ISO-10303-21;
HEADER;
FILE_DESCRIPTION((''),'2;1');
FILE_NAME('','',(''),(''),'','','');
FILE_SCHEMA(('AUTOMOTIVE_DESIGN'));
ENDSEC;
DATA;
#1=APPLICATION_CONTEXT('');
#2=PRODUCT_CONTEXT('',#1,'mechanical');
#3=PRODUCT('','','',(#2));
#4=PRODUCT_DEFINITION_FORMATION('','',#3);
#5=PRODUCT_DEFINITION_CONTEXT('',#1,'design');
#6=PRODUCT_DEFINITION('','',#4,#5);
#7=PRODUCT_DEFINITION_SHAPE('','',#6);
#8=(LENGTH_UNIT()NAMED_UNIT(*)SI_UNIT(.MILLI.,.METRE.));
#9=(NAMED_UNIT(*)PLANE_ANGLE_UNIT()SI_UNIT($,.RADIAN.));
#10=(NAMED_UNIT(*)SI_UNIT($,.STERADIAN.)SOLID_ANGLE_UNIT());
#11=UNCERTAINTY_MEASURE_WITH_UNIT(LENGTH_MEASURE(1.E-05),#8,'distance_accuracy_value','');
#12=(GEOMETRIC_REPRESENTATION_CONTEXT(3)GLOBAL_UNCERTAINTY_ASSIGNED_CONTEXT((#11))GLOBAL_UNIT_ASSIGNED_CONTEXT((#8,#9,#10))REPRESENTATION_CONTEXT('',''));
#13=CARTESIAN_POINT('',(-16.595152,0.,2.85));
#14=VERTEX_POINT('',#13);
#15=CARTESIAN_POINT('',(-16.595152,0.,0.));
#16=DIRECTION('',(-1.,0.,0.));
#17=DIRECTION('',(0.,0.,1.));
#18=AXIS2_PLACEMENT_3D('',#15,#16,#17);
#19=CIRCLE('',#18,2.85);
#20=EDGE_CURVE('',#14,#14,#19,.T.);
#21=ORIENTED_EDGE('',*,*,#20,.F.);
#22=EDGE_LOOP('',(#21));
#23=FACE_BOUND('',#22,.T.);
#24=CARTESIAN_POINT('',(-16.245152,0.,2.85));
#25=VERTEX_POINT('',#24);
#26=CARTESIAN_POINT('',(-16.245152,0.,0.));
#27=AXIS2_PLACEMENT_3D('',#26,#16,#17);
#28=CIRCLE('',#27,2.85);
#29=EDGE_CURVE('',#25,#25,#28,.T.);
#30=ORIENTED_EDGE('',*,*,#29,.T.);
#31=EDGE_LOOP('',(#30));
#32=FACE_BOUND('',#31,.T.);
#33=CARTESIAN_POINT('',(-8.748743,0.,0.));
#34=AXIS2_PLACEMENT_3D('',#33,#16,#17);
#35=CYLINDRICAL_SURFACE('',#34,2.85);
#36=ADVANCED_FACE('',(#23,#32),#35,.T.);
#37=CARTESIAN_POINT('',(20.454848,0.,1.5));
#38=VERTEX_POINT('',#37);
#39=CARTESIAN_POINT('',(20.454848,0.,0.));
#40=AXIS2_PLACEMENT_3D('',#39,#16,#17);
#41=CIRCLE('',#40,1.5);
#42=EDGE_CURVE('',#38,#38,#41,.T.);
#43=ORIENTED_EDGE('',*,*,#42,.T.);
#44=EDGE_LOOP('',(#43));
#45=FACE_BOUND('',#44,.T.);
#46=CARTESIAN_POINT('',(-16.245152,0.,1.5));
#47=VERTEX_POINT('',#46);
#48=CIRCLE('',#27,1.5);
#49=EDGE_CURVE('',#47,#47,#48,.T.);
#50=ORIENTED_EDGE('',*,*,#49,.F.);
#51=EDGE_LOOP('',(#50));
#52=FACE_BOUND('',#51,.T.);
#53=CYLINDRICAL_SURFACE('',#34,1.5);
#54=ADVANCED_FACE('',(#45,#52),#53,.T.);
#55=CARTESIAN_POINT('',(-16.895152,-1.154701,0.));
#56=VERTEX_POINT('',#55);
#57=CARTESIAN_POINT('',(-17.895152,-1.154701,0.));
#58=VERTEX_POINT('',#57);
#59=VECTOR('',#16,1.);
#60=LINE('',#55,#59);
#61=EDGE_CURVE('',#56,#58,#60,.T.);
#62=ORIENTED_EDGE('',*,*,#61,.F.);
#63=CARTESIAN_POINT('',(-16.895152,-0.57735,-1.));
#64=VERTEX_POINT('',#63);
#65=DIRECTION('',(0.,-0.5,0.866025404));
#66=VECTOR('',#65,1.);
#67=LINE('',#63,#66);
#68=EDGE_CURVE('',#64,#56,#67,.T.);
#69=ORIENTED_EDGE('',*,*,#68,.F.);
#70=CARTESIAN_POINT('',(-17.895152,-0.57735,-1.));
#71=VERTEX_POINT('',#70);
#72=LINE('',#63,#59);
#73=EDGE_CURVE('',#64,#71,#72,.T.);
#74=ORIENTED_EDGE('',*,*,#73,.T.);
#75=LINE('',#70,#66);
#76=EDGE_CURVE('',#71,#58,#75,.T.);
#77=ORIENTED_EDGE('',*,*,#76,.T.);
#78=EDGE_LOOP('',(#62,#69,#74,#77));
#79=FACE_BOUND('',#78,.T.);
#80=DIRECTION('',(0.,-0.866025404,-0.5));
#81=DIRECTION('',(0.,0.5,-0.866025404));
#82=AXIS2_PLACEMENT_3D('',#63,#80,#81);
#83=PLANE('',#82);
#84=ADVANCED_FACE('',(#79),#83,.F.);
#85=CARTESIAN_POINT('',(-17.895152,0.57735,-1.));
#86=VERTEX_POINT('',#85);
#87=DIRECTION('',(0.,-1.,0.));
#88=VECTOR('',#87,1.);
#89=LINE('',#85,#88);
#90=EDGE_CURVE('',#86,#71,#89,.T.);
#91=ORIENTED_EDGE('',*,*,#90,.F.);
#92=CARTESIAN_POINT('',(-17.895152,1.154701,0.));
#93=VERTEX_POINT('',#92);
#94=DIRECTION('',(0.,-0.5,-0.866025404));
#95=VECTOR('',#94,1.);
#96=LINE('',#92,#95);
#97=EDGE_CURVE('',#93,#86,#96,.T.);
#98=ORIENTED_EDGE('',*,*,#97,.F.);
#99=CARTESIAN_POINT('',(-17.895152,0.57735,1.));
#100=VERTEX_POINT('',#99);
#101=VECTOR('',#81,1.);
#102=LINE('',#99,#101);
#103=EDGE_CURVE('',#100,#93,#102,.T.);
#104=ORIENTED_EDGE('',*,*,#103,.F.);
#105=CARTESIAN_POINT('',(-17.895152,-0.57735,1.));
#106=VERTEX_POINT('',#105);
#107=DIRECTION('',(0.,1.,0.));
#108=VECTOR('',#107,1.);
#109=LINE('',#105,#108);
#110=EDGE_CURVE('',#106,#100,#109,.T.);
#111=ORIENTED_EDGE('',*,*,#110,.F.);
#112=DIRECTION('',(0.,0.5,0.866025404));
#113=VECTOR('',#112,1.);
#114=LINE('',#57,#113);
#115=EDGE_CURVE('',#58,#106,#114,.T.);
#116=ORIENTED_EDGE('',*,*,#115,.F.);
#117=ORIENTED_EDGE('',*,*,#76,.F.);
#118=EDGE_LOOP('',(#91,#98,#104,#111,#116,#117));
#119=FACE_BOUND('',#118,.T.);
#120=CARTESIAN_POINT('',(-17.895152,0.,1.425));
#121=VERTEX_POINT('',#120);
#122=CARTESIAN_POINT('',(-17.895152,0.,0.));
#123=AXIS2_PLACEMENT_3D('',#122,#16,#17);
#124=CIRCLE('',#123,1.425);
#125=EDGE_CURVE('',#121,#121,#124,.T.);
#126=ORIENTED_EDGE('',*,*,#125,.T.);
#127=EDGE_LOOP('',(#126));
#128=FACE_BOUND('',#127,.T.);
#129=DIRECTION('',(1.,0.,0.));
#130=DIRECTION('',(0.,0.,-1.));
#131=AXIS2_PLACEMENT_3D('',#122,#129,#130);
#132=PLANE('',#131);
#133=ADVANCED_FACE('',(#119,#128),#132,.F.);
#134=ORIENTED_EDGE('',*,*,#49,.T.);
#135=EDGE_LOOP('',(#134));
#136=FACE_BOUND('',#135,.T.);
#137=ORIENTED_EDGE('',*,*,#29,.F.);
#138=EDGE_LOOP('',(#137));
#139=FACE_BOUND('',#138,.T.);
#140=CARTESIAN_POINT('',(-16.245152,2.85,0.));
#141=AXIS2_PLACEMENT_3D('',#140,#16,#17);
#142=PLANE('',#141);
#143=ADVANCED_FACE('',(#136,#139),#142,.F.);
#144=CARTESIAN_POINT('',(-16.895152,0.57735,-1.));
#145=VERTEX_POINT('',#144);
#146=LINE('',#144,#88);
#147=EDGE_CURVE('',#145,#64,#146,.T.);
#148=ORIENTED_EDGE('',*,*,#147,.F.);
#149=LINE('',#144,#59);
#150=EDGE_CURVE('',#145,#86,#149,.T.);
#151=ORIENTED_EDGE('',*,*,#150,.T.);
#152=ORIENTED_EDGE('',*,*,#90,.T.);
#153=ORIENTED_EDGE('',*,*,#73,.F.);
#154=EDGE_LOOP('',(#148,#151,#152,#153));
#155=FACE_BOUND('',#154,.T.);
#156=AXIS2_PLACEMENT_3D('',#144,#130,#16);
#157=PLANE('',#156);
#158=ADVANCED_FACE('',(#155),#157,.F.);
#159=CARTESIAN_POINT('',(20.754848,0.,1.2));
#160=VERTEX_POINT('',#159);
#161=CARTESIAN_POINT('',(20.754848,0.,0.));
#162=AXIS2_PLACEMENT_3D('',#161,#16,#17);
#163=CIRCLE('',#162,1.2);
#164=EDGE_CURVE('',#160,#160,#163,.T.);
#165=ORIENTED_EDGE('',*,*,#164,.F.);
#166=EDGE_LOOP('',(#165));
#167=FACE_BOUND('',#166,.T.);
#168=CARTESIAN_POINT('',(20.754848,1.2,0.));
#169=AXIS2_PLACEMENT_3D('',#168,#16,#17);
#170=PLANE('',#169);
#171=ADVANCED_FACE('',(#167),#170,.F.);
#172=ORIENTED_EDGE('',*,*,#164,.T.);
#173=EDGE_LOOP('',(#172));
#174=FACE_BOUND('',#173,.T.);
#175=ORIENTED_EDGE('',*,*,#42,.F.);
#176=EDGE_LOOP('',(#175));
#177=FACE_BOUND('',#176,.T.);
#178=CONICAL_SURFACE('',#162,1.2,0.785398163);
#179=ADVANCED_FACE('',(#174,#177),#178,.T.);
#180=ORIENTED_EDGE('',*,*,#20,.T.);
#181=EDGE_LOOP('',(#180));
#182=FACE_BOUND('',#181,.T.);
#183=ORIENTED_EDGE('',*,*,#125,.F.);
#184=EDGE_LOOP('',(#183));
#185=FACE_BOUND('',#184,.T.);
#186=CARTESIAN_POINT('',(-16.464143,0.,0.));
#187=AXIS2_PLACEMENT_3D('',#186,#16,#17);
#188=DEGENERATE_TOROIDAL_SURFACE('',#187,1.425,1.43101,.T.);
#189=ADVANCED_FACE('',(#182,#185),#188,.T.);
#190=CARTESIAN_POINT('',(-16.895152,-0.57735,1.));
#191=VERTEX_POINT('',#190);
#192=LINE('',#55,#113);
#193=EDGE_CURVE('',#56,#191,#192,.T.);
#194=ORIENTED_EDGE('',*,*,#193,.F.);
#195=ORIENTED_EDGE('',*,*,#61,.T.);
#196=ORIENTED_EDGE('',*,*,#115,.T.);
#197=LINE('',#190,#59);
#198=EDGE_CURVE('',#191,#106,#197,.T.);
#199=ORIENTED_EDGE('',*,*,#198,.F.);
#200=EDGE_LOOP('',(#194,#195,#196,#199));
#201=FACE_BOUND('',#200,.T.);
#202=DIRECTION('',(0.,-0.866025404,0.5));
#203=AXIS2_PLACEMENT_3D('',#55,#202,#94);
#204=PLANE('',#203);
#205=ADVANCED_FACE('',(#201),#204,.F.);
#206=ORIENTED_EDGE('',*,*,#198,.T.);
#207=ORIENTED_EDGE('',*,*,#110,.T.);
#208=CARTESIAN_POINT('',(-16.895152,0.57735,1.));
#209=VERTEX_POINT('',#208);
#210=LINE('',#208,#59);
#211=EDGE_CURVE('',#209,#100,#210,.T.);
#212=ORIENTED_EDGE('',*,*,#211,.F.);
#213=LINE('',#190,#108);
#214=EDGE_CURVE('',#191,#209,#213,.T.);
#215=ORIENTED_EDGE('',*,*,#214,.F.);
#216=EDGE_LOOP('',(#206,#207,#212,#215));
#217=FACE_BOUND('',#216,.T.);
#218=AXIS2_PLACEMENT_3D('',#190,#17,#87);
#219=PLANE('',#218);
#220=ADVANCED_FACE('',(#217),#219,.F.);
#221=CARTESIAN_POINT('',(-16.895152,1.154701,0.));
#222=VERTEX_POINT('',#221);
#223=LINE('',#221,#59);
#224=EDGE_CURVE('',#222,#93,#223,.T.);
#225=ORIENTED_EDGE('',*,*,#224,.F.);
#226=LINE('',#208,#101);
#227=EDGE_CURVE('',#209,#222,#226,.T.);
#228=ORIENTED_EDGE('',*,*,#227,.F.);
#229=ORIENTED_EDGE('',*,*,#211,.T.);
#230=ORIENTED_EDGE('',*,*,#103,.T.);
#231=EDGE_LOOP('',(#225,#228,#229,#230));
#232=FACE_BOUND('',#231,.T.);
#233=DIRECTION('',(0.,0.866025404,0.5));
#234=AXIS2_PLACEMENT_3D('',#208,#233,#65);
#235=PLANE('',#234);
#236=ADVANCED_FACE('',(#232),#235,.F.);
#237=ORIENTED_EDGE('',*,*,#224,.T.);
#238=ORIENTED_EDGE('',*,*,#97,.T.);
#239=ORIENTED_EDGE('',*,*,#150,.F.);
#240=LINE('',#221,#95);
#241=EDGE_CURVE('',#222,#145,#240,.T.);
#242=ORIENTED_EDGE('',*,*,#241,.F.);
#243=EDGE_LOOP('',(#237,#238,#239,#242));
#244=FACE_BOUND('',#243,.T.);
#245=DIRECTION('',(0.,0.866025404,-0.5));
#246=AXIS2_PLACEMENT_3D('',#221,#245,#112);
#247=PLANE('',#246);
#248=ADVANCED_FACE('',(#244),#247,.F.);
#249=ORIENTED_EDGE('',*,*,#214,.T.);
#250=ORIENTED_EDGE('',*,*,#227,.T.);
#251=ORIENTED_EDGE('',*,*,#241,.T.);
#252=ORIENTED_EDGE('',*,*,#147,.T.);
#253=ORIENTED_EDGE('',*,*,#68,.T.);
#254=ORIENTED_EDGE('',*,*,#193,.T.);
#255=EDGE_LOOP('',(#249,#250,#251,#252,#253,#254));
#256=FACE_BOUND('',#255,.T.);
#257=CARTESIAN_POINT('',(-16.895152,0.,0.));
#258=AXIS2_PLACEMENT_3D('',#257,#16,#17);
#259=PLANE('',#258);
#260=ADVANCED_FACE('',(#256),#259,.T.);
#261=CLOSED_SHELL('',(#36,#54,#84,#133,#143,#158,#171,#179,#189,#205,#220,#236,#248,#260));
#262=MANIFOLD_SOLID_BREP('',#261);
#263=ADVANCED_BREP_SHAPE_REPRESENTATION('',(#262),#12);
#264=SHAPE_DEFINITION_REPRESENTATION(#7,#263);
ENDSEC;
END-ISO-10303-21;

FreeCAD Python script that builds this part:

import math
import FreeCAD as App
import Part
import Sketcher
from FreeCAD import Vector
Q = App.Units.Quantity

doc = App.newDocument("Part")
params = doc.addObject("Spreadsheet::Sheet", "Params")
for row, (alias, value) in enumerate([
    ("sketch1_width", "36.7 mm"),
    ("sketch1_height", "1.2 mm"),
    ("sketch1_width2", "38.65 mm"),
    ("sketch1_width3", "0.35 mm"),
    ("sketch1_height2", "1.35 mm"),
    ("revolution_angle", "360 deg"),
    ("pocket1_length", "1 mm"),
], start=1):
    params.set(f"A{row}", alias)
    params.set(f"B{row}", "=" + value)
    params.setAlias(f"B{row}", alias)

body = doc.addObject("PartDesign::Body", "Body")

# Sketch on XY plane
sketch1 = body.newObject("Sketcher::SketchObject", "Sketch")
sketch1.AttachmentSupport = (doc.getObject("XY_Plane"), [""])
sketch1.MapMode = "FlatFace"
sketch1.addGeometry(Part.LineSegment(Vector(-17.9, 1.43, 0), Vector(-17.9, 0, 0)), False)
sketch1.addGeometry(Part.LineSegment(Vector(-17.9, 0, 0), Vector(20.75, 0, 0)), False)
sketch1.addGeometry(Part.LineSegment(Vector(20.75, 0, 0), Vector(20.75, 1.2, 0)), False)
sketch1.addGeometry(Part.LineSegment(Vector(20.75, 1.2, 0), Vector(20.45, 1.5, 0)), False)
sketch1.addGeometry(Part.LineSegment(Vector(20.45, 1.5, 0), Vector(-16.25, 1.5, 0)), False)
sketch1.addGeometry(Part.LineSegment(Vector(-16.25, 1.5, 0), Vector(-16.25, 2.85, 0)), False)
sketch1.addGeometry(Part.LineSegment(Vector(-16.25, 2.85, 0), Vector(-16.6, 2.85, 0)), False)
sketch1.addGeometry(Part.ArcOfCircle(Part.Circle(Vector(-16.46, 1.43, 0), Vector(0, 0, 1), 1.43), math.radians(95), math.radians(180)), False)
sketch1.addConstraint(Sketcher.Constraint("Coincident", 0, 2, 1, 1))
sketch1.addConstraint(Sketcher.Constraint("Coincident", 1, 2, 2, 1))
sketch1.addConstraint(Sketcher.Constraint("Coincident", 2, 2, 3, 1))
sketch1.addConstraint(Sketcher.Constraint("Coincident", 3, 2, 4, 1))
sketch1.addConstraint(Sketcher.Constraint("Coincident", 4, 2, 5, 1))
sketch1.addConstraint(Sketcher.Constraint("Coincident", 5, 2, 6, 1))
sketch1.addConstraint(Sketcher.Constraint("Coincident", 6, 2, 7, 1))
sketch1.addConstraint(Sketcher.Constraint("Tangent", 7, 2, 0, 1))
sketch1.addConstraint(Sketcher.Constraint("Vertical", 0))
sketch1.addConstraint(Sketcher.Constraint("Horizontal", 1))
sketch1.addConstraint(Sketcher.Constraint("Vertical", 2))
sketch1.addConstraint(Sketcher.Constraint("Horizontal", 4))
sketch1.addConstraint(Sketcher.Constraint("Vertical", 5))
sketch1.addConstraint(Sketcher.Constraint("Horizontal", 6))
sketch1.addConstraint(Sketcher.Constraint("PointOnObject", 0, 2, -1))
sketch1.addConstraint(Sketcher.Constraint("Angle", 3, Q("135 deg")))
sketch1.addConstraint(Sketcher.Constraint("DistanceX", 4, 2, 4, 1, 36.7))
sketch1.addConstraint(Sketcher.Constraint("DistanceY", 2, 1, 2, 2, 1.2))
sketch1.addConstraint(Sketcher.Constraint("DistanceX", 4, 2, 2, 2, 37.0))
sketch1.addConstraint(Sketcher.Constraint("DistanceX", 1, 1, 1, 2, 38.65))
sketch1.addConstraint(Sketcher.Constraint("DistanceX", 6, 2, 6, 1, 0.35))
sketch1.addConstraint(Sketcher.Constraint("DistanceY", 5, 1, 5, 2, 1.35))
sketch1.addConstraint(Sketcher.Constraint("DistanceY", 0, 2, 0, 1, 1.425))
sketch1.addConstraint(Sketcher.Constraint("DistanceX", 7, 3, -1, 1, 16.464143))
sketch1.setExpression("Constraints[16]", "Params.sketch1_width")
sketch1.setExpression("Constraints[17]", "Params.sketch1_height")
sketch1.setExpression("Constraints[19]", "Params.sketch1_width2")
sketch1.setExpression("Constraints[20]", "Params.sketch1_width3")
sketch1.setExpression("Constraints[21]", "Params.sketch1_height2")
revolution = body.newObject("PartDesign::Revolution", "Revolution")
revolution.Profile = sketch1
revolution.ReferenceAxis = (sketch1, ["H_Axis"])
revolution.setExpression("Angle", "Params.revolution_angle")

# Sketch on YZ plane
sketch2 = body.newObject("Sketcher::SketchObject", "Sketch001")
sketch2.AttachmentSupport = (doc.getObject("YZ_Plane"), [""])
sketch2.MapMode = "FlatFace"
sketch2.AttachmentOffset = App.Placement(Vector(0, 0, -17.895152), App.Rotation())
sketch2.addGeometry(Part.LineSegment(Vector(1.2, 0, 0), Vector(0.6, -1, 0)), False)
sketch2.addGeometry(Part.LineSegment(Vector(0.6, -1, 0), Vector(-0.6, -1, 0)), False)
sketch2.addGeometry(Part.LineSegment(Vector(-0.6, -1, 0), Vector(-1.2, 0, 0)), False)
sketch2.addGeometry(Part.LineSegment(Vector(-1.2, 0, 0), Vector(-0.6, 1, 0)), False)
sketch2.addGeometry(Part.LineSegment(Vector(-0.6, 1, 0), Vector(0.6, 1, 0)), False)
sketch2.addGeometry(Part.LineSegment(Vector(0.6, 1, 0), Vector(1.2, 0, 0)), False)
sketch2.addConstraint(Sketcher.Constraint("Coincident", 0, 2, 1, 1))
sketch2.addConstraint(Sketcher.Constraint("Coincident", 1, 2, 2, 1))
sketch2.addConstraint(Sketcher.Constraint("Coincident", 2, 2, 3, 1))
sketch2.addConstraint(Sketcher.Constraint("Coincident", 3, 2, 4, 1))
sketch2.addConstraint(Sketcher.Constraint("Coincident", 4, 2, 5, 1))
sketch2.addConstraint(Sketcher.Constraint("Coincident", 5, 2, 0, 1))
sketch2.addConstraint(Sketcher.Constraint("Horizontal", 1))
sketch2.addConstraint(Sketcher.Constraint("Horizontal", 4))
sketch2.addConstraint(Sketcher.Constraint("Symmetric", 0, 2, 3, 2, -1, 1))
sketch2.addConstraint(Sketcher.Constraint("Symmetric", 2, 2, 5, 2, -1, 1))
sketch2.addConstraint(Sketcher.Constraint("PointOnObject", 2, 2, -1))
sketch2.addConstraint(Sketcher.Constraint("Parallel", 2, 5))
sketch2.addConstraint(Sketcher.Constraint("Vertical", 1, 2, 3, 2))
sketch2.addConstraint(Sketcher.Constraint("Angle", 0, Q("-120 deg")))
sketch2.addConstraint(Sketcher.Constraint("DistanceY", 0, 2, -1, 1, 1.0))
sketch2.addConstraint(Sketcher.Constraint("DistanceX", 1, 2, 1, 1, 1.154701))
pocket1 = body.newObject("PartDesign::Pocket", "Pocket")
pocket1.Profile = sketch2
pocket1.setExpression("Length", "Params.pocket1_length")
pocket1.Reversed = True

doc.recompute()
